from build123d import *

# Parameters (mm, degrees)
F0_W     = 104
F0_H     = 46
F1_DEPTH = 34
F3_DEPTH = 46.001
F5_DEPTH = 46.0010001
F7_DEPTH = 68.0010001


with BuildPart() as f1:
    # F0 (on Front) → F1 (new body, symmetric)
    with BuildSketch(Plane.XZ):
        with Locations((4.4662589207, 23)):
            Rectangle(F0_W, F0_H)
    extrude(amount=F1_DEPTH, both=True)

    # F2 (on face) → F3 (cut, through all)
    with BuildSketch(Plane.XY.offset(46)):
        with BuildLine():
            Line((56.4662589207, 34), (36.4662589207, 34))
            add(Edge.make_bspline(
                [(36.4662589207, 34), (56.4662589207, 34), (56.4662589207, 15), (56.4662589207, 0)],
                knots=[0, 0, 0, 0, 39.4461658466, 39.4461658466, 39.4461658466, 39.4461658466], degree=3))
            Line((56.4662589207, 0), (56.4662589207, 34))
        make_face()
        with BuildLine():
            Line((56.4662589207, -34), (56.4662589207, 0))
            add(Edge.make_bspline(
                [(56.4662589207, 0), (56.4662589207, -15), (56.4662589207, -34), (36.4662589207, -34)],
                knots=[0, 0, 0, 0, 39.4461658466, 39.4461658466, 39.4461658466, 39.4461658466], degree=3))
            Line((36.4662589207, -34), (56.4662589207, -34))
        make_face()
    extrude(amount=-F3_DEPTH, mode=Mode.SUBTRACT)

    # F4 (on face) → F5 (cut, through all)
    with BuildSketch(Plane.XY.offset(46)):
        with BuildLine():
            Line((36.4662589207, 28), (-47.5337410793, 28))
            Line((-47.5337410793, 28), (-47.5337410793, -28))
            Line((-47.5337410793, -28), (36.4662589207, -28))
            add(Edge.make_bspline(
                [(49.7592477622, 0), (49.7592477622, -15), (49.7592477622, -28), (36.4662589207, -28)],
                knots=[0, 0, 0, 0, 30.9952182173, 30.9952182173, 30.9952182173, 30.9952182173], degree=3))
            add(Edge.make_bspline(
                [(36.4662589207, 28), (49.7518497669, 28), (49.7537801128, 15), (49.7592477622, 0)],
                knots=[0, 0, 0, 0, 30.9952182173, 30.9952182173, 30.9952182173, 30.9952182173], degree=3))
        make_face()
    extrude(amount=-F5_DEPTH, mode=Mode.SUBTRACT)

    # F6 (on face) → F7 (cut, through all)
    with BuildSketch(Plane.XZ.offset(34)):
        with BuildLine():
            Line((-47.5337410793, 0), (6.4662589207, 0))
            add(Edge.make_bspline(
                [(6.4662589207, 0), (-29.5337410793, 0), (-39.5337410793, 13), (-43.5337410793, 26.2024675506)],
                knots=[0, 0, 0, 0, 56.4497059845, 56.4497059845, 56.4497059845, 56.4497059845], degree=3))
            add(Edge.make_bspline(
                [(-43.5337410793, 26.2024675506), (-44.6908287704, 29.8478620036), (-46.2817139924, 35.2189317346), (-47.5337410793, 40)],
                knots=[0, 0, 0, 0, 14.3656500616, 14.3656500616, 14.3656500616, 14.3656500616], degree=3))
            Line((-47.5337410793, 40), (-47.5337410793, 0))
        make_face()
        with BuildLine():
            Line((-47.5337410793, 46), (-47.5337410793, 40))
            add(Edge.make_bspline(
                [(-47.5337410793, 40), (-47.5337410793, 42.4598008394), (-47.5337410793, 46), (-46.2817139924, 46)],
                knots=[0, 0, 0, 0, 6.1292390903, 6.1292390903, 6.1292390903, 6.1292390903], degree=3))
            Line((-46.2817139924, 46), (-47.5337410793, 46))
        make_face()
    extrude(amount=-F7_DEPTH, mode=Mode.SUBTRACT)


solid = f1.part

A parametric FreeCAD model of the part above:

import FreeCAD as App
import Part
import Sketcher

doc = App.newDocument("Part")
params = doc.addObject("Spreadsheet::Sheet", "Params")
for row, (alias, value) in enumerate([
    ("sketch1_width", "104 mm"),
    ("sketch1_height", "46 mm"),
    ("pad1_length", "68 mm"),
    ("sketch3_width", "84 mm"),
], start=1):
    params.set(f"A{row}", alias)
    params.set(f"B{row}", "=" + value)
    params.setAlias(f"B{row}", alias)

body = doc.addObject("PartDesign::Body", "Body")

sketch1 = doc.addObject("Sketcher::SketchObject", "Sketch")
body.addObject(sketch1)
sketch1.AttachmentSupport = (doc.XZ_Plane, [""])
sketch1.MapMode = "FlatFace"
sketch1.addGeometry([
    Part.LineSegment(App.Vector(-48, 46, 0), App.Vector(-48, 0, 0)),
    Part.LineSegment(App.Vector(-48, 0, 0), App.Vector(56, 0, 0)),
    Part.LineSegment(App.Vector(56, 0, 0), App.Vector(56, 46, 0)),
    Part.LineSegment(App.Vector(56, 46, 0), App.Vector(-48, 46, 0)),
], False)
sketch1.addConstraint([
    Sketcher.Constraint("Coincident", 0, 2, 1, 1),
    Sketcher.Constraint("Coincident", 1, 2, 2, 1),
    Sketcher.Constraint("Coincident", 2, 2, 3, 1),
    Sketcher.Constraint("Coincident", 3, 2, 0, 1),
    Sketcher.Constraint("Vertical", 0),
    Sketcher.Constraint("Horizontal", 1),
    Sketcher.Constraint("Vertical", 2),
    Sketcher.Constraint("Horizontal", 3),
    Sketcher.Constraint("PointOnObject", 0, 2, -1),
    Sketcher.Constraint("DistanceX", 1, 1, 1, 2, 104.0),
    Sketcher.Constraint("DistanceY", 0, 2, 0, 1, 46.0),
    Sketcher.Constraint("DistanceX", 0, 2, -1, 1, 47.533741),
])
sketch1.setExpression("Constraints[9]", "Params.sketch1_width")
sketch1.setExpression("Constraints[10]", "Params.sketch1_height")
pad1 = doc.addObject("PartDesign::Pad", "Pad")
body.addObject(pad1)
pad1.Profile = sketch1
pad1.setExpression("Length", "Params.pad1_length")
pad1.Midplane = True

sketch2 = doc.addObject("Sketcher::SketchObject", "Sketch001")
body.addObject(sketch2)
sketch2.AttachmentSupport = (doc.XY_Plane, [""])
sketch2.MapMode = "FlatFace"
sketch2.AttachmentOffset = App.Placement(App.Vector(0, 0, 46), App.Rotation())
sketch2.addGeometry([
    Part.LineSegment(App.Vector(56.466259, 34, 0), App.Vector(36.466259, 34, 0)),
    Part.BSplineCurve([App.Vector(36.466259, 34, 0), App.Vector(56.466259, 34, 0), App.Vector(56.466259, 15, 0), App.Vector(56.466259, 0, 0)], [4, 4], [0, 39.446165847], False, 3, [1, 1, 1, 1], False),
    Part.LineSegment(App.Vector(56.466259, 0, 0), App.Vector(56.466259, 34, 0)),
    Part.LineSegment(App.Vector(56.466259, -34, 0), App.Vector(56.466259, 0, 0)),
    Part.BSplineCurve([App.Vector(56.466259, 0, 0), App.Vector(56.466259, -15, 0), App.Vector(56.466259, -34, 0), App.Vector(36.466259, -34, 0)], [4, 4], [0, 39.446165847], False, 3, [1, 1, 1, 1], False),
    Part.LineSegment(App.Vector(36.466259, -34, 0), App.Vector(56.466259, -34, 0)),
], False)
sketch2.addConstraint([
    Sketcher.Constraint("Block", 1),
    Sketcher.Constraint("Block", 4),
    Sketcher.Constraint("Coincident", 0, 2, 1, 1),
    Sketcher.Constraint("Coincident", 1, 2, 2, 1),
    Sketcher.Constraint("Coincident", 2, 2, 0, 1),
    Sketcher.Constraint("Coincident", 3, 2, 4, 1),
    Sketcher.Constraint("Coincident", 4, 2, 5, 1),
    Sketcher.Constraint("Coincident", 5, 2, 3, 1),
    Sketcher.Constraint("Horizontal", 0),
    Sketcher.Constraint("Vertical", 2),
    Sketcher.Constraint("Vertical", 3),
    Sketcher.Constraint("Horizontal", 5),
])
pocket1 = doc.addObject("PartDesign::Pocket", "Pocket")
body.addObject(pocket1)
pocket1.Profile = sketch2
pocket1.Type = "ThroughAll"

sketch3 = doc.addObject("Sketcher::SketchObject", "Sketch002")
body.addObject(sketch3)
sketch3.AttachmentSupport = (doc.XY_Plane, [""])
sketch3.MapMode = "FlatFace"
sketch3.AttachmentOffset = App.Placement(App.Vector(0, 0, 46), App.Rotation())
sketch3.addGeometry([
    Part.LineSegment(App.Vector(36.466259, 28, 0), App.Vector(-47.533741, 28, 0)),
    Part.LineSegment(App.Vector(-47.533741, 28, 0), App.Vector(-47.533741, -28, 0)),
    Part.LineSegment(App.Vector(-47.533741, -28, 0), App.Vector(36.466259, -28, 0)),
    Part.BSplineCurve([App.Vector(49.759248, 0, 0), App.Vector(49.759248, -15, 0), App.Vector(49.759248, -28, 0), App.Vector(36.466259, -28, 0)], [4, 4], [0, 30.995218217], False, 3, [1, 1, 1, 1], False),
    Part.BSplineCurve([App.Vector(36.466259, 28, 0), App.Vector(49.75185, 28, 0), App.Vector(49.75378, 15, 0), App.Vector(49.759248, 0, 0)], [4, 4], [0, 30.995218217], False, 3, [1, 1, 1, 1], False),
], False)
sketch3.addConstraint([
    Sketcher.Constraint("Block", 3),
    Sketcher.Constraint("Block", 4),
    Sketcher.Constraint("Coincident", 0, 2, 1, 1),
    Sketcher.Constraint("Coincident", 1, 2, 2, 1),
    Sketcher.Constraint("Coincident", 2, 2, 3, 2),
    Sketcher.Constraint("Coincident", 4, 1, 0, 1),
    Sketcher.Constraint("Horizontal", 0),
    Sketcher.Constraint("Vertical", 1),
    Sketcher.Constraint("Horizontal", 2),
    Sketcher.Constraint("DistanceX", 0, 2, 0, 1, 84.0),
])
sketch3.setExpression("Constraints[9]", "Params.sketch3_width")
pocket2 = doc.addObject("PartDesign::Pocket", "Pocket001")
body.addObject(pocket2)
pocket2.Profile = sketch3
pocket2.Type = "ThroughAll"

sketch4 = doc.addObject("Sketcher::SketchObject", "Sketch003")
body.addObject(sketch4)
sketch4.AttachmentSupport = (doc.XZ_Plane, [""])
sketch4.MapMode = "FlatFace"
sketch4.AttachmentOffset = App.Placement(App.Vector(0, 0, 34), App.Rotation())
sketch4.addGeometry([
    Part.LineSegment(App.Vector(-47.533741, 0, 0), App.Vector(6.466259, 0, 0)),
    Part.BSplineCurve([App.Vector(6.466259, 0, 0), App.Vector(-29.533741, 0, 0), App.Vector(-39.533741, 13, 0), App.Vector(-43.533741, 26.202468, 0)], [4, 4], [0, 56.449705984], False, 3, [1, 1, 1, 1], False),
    Part.BSplineCurve([App.Vector(-43.533741, 26.202468, 0), App.Vector(-44.690829, 29.847862, 0), App.Vector(-46.281714, 35.218932, 0), App.Vector(-47.533741, 40, 0)], [4, 4], [0, 14.365650062], False, 3, [1, 1, 1, 1], False),
    Part.LineSegment(App.Vector(-47.533741, 40, 0), App.Vector(-47.533741, 0, 0)),
    Part.LineSegment(App.Vector(-47.533741, 46, 0), App.Vector(-47.533741, 40, 0)),
    Part.BSplineCurve([App.Vector(-47.533741, 40, 0), App.Vector(-47.533741, 42.459801, 0), App.Vector(-47.533741, 46, 0), App.Vector(-46.281714, 46, 0)], [4, 4], [0, 6.12923909], False, 3, [1, 1, 1, 1], False),
    Part.LineSegment(App.Vector(-46.281714, 46, 0), App.Vector(-47.533741, 46, 0)),
], False)
sketch4.addConstraint([
    Sketcher.Constraint("Block", 1),
    Sketcher.Constraint("Block", 2),
    Sketcher.Constraint("Block", 5),
    Sketcher.Constraint("Coincident", 0, 2, 1, 1),
    Sketcher.Constraint("Coincident", 2, 2, 3, 1),
    Sketcher.Constraint("Coincident", 3, 2, 0, 1),
    Sketcher.Constraint("Coincident", 4, 2, 5, 1),
    Sketcher.Constraint("Coincident", 5, 2, 6, 1),
    Sketcher.Constraint("Coincident", 6, 2, 4, 1),
    Sketcher.Constraint("Horizontal", 0),
    Sketcher.Constraint("Vertical", 3),
    Sketcher.Constraint("Vertical", 4),
    Sketcher.Constraint("Horizontal", 6),
])
pocket3 = doc.addObject("PartDesign::Pocket", "Pocket002")
body.addObject(pocket3)
pocket3.Profile = sketch4
pocket3.Type = "ThroughAll"

doc.recompute()
